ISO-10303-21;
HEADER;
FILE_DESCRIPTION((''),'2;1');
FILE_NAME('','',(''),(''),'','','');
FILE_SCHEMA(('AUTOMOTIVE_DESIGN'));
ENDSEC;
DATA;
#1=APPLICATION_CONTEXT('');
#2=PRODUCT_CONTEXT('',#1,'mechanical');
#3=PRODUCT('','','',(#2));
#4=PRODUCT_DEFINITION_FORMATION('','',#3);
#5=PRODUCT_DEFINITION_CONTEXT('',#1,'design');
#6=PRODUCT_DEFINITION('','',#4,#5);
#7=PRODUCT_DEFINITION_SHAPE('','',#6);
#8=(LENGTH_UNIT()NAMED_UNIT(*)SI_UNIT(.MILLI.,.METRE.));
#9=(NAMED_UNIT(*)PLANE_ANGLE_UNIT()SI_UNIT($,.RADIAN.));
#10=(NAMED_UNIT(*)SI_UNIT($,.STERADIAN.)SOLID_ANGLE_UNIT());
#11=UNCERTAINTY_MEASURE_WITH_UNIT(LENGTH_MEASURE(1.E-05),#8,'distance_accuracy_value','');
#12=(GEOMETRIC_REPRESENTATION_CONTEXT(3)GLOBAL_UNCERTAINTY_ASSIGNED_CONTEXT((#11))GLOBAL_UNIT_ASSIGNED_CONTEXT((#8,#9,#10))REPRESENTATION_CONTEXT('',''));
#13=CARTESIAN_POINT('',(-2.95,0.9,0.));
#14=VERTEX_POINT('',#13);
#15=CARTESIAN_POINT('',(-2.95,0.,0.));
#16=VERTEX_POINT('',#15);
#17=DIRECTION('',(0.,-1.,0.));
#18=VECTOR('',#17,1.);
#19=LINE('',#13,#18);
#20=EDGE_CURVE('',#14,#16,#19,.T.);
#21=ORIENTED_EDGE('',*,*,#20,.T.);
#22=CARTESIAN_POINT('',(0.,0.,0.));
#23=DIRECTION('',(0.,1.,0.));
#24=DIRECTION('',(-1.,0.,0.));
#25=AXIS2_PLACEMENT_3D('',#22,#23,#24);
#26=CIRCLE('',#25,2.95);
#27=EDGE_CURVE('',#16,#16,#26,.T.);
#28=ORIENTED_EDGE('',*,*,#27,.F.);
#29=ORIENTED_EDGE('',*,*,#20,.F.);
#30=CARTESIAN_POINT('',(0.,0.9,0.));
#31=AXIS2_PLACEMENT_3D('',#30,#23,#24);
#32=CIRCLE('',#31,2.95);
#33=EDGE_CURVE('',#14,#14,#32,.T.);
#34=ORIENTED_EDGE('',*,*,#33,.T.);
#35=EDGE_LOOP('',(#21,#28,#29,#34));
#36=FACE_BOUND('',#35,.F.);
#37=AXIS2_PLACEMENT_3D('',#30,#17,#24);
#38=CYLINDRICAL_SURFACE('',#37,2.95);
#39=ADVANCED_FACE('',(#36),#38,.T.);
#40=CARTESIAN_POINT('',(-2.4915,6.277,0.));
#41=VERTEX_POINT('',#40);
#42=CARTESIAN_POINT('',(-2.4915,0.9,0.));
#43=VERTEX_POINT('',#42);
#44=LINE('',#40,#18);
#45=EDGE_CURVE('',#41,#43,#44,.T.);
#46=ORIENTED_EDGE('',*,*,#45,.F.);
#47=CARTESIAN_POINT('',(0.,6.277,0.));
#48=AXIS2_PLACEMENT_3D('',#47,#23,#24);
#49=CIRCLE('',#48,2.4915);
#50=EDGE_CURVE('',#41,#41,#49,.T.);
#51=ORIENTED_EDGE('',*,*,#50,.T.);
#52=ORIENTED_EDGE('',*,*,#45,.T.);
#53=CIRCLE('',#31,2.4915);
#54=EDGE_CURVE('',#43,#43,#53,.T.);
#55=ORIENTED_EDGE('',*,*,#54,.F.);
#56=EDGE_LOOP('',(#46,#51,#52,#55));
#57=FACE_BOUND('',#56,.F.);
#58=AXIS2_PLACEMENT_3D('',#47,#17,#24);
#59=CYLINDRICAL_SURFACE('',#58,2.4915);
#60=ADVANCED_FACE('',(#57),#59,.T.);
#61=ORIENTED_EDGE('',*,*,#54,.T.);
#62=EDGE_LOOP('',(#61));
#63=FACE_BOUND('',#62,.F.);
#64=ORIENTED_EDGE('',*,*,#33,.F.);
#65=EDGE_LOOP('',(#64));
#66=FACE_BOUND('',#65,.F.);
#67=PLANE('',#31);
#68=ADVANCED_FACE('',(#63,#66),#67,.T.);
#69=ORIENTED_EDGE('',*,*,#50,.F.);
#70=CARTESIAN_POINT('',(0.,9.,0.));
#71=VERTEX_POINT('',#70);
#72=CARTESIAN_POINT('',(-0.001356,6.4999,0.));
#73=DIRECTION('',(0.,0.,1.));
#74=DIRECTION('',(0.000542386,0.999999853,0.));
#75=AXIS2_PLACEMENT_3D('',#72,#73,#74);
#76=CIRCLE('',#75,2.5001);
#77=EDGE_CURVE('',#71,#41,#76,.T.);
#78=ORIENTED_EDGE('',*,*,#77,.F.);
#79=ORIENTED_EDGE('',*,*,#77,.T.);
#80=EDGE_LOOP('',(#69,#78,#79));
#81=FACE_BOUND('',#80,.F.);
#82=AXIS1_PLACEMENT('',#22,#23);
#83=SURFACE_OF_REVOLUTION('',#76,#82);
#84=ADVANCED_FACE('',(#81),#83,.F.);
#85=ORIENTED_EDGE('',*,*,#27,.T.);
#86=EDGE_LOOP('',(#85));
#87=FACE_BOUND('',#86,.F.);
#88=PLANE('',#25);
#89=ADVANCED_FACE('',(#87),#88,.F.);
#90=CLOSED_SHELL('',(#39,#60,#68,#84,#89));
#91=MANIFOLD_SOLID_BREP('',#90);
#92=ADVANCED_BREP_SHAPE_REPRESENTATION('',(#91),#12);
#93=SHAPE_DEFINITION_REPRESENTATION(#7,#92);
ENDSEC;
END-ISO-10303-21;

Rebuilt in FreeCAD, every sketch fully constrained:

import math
import FreeCAD as App
import Part
import Sketcher
from FreeCAD import Vector

doc = App.newDocument("Part")
body = doc.addObject("PartDesign::Body", "Body")

sketch1 = doc.addObject("Sketcher::SketchObject", "Sketch")
body.addObject(sketch1)
sketch1.AttachmentSupport = (doc.XY_Plane, [""])
sketch1.MapMode = "FlatFace"
sketch1.addGeometry([
    Part.LineSegment(Vector(-2.95, 0, 0), Vector(0, 0, 0)),
    Part.LineSegment(Vector(0, 0, 0), Vector(0, 9, 0)),
    Part.ArcOfCircle(Part.Circle(Vector(0, 6.5, 0), Vector(0, 0, 1), 2.5), math.radians(90), math.radians(185)),
    Part.LineSegment(Vector(-2.49, 6.28, 0), Vector(-2.49, 0.9, 0)),
    Part.LineSegment(Vector(-2.49, 0.9, 0), Vector(-2.95, 0.9, 0)),
    Part.LineSegment(Vector(-2.95, 0.9, 0), Vector(-2.95, 0, 0)),
], False)
sketch1.addConstraint([
    Sketcher.Constraint("Coincident", 0, 2, 1, 1),
    Sketcher.Constraint("Coincident", 1, 2, 2, 1),
    Sketcher.Constraint("Coincident", 2, 2, 3, 1),
    Sketcher.Constraint("Coincident", 3, 2, 4, 1),
    Sketcher.Constraint("Coincident", 4, 2, 5, 1),
    Sketcher.Constraint("Coincident", 5, 2, 0, 1),
    Sketcher.Constraint("Horizontal", 0),
    Sketcher.Constraint("Vertical", 1),
    Sketcher.Constraint("Vertical", 3),
    Sketcher.Constraint("Horizontal", 4),
    Sketcher.Constraint("Vertical", 5),
    Sketcher.Constraint("Coincident", 0, 2, -1, 1),
    Sketcher.Constraint("Radius", 2, 2.5),
    Sketcher.Constraint("DistanceY", 1, 1, 1, 2, 9.0),
    Sketcher.Constraint("DistanceY", 5, 2, 5, 1, 0.9),
    Sketcher.Constraint("DistanceX", 0, 1, 0, 2, 2.95),
    Sketcher.Constraint("DistanceY", 3, 2, 3, 1, 5.377),
    Sketcher.Constraint("DistanceX", 4, 2, 4, 1, 0.4585),
])
revolution = doc.addObject("PartDesign::Revolution", "Revolution")
body.addObject(revolution)
revolution.Profile = sketch1
revolution.ReferenceAxis = (sketch1, ["V_Axis"])
revolution.Angle = 360

doc.recompute()
